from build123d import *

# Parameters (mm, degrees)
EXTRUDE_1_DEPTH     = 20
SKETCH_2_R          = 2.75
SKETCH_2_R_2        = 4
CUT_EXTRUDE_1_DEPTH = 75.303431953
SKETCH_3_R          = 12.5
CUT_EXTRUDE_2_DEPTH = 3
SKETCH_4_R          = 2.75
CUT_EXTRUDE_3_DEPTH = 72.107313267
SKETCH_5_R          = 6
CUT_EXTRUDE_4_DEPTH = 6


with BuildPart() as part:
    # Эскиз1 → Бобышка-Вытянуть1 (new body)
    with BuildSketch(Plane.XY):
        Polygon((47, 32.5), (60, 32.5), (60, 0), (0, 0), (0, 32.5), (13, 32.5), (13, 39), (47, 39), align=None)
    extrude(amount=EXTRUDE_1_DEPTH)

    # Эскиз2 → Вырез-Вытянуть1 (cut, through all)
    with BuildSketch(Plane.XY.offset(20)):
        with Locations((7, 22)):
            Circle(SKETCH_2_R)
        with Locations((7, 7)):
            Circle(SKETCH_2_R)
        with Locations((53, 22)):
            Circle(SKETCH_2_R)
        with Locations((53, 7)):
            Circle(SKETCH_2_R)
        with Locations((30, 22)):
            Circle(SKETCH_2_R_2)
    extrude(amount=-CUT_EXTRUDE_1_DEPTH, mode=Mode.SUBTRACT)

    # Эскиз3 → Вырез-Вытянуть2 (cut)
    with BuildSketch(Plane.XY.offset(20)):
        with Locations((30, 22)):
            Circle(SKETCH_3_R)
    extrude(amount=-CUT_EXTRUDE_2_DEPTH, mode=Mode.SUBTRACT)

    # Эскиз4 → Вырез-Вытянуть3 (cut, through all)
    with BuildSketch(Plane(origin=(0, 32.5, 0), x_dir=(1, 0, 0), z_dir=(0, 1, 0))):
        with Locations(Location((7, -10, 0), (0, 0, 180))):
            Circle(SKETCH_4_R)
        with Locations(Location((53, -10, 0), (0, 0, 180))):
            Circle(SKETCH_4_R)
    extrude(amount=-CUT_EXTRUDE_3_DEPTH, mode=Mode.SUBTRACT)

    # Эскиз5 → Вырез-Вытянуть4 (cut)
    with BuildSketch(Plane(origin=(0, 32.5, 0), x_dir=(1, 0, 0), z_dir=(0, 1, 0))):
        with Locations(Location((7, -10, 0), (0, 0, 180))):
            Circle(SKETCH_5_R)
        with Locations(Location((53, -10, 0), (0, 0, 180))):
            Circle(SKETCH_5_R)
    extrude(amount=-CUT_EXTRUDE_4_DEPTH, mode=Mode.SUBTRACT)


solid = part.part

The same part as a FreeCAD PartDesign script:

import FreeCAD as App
import Part
import Sketcher

V = App.Vector

doc = App.newDocument("Part")
body = doc.addObject("PartDesign::Body", "Body")

sketch1 = body.newObject("Sketcher::SketchObject", "Sketch")
sketch1.AttachmentSupport = (doc.getObject("XY_Plane"), [""])
sketch1.MapMode = "FlatFace"
sketch1.addGeometry(Part.LineSegment(V(60, 32, 0), V(47, 32, 0)), False)
sketch1.addGeometry(Part.LineSegment(V(47, 32, 0), V(47, 39, 0)), False)
sketch1.addGeometry(Part.LineSegment(V(47, 39, 0), V(13, 39, 0)), False)
sketch1.addGeometry(Part.LineSegment(V(13, 39, 0), V(13, 32, 0)), False)
sketch1.addGeometry(Part.LineSegment(V(13, 32, 0), V(0, 32, 0)), False)
sketch1.addGeometry(Part.LineSegment(V(0, 32, 0), V(0, 0, 0)), False)
sketch1.addGeometry(Part.LineSegment(V(0, 0, 0), V(60, 0, 0)), False)
sketch1.addGeometry(Part.LineSegment(V(60, 0, 0), V(60, 32, 0)), False)
sketch1.addConstraint(Sketcher.Constraint("Coincident", 0, 2, 1, 1))
sketch1.addConstraint(Sketcher.Constraint("Coincident", 1, 2, 2, 1))
sketch1.addConstraint(Sketcher.Constraint("Coincident", 2, 2, 3, 1))
sketch1.addConstraint(Sketcher.Constraint("Coincident", 3, 2, 4, 1))
sketch1.addConstraint(Sketcher.Constraint("Coincident", 4, 2, 5, 1))
sketch1.addConstraint(Sketcher.Constraint("Coincident", 5, 2, 6, 1))
sketch1.addConstraint(Sketcher.Constraint("Coincident", 6, 2, 7, 1))
sketch1.addConstraint(Sketcher.Constraint("Coincident", 7, 2, 0, 1))
sketch1.addConstraint(Sketcher.Constraint("Horizontal", 0))
sketch1.addConstraint(Sketcher.Constraint("Vertical", 1))
sketch1.addConstraint(Sketcher.Constraint("Horizontal", 2))
sketch1.addConstraint(Sketcher.Constraint("Vertical", 3))
sketch1.addConstraint(Sketcher.Constraint("Horizontal", 4))
sketch1.addConstraint(Sketcher.Constraint("Vertical", 5))
sketch1.addConstraint(Sketcher.Constraint("Horizontal", 6))
sketch1.addConstraint(Sketcher.Constraint("Vertical", 7))
sketch1.addConstraint(Sketcher.Constraint("Coincident", 5, 2, -1, 1))
sketch1.addConstraint(Sketcher.Constraint("Horizontal", 0, 2, 3, 2))
sketch1.addConstraint(Sketcher.Constraint("Equal", 0, 4))
sketch1.addConstraint(Sketcher.Constraint("DistanceX", 0, 2, 0, 1, 13.0))
sketch1.addConstraint(Sketcher.Constraint("DistanceX", 2, 2, 2, 1, 34.0))
sketch1.addConstraint(Sketcher.Constraint("DistanceY", 1, 1, 1, 2, 6.5))
sketch1.addConstraint(Sketcher.Constraint("DistanceY", 5, 2, 5, 1, 32.5))
pad1 = body.newObject("PartDesign::Pad", "Pad")
pad1.Profile = sketch1
pad1.Length = 20

sketch2 = body.newObject("Sketcher::SketchObject", "Sketch001")
sketch2.AttachmentSupport = (doc.getObject("XY_Plane"), [""])
sketch2.MapMode = "FlatFace"
sketch2.AttachmentOffset = App.Placement(V(0, 0, 20), App.Rotation())
sketch2.addGeometry(Part.Circle(V(7, 22, 0), V(0, 0, 1), 2.8), False)
sketch2.addGeometry(Part.Circle(V(7, 7, 0), V(0, 0, 1), 2.8), False)
sketch2.addGeometry(Part.Circle(V(53, 22, 0), V(0, 0, 1), 2.8), False)
sketch2.addGeometry(Part.Circle(V(53, 7, 0), V(0, 0, 1), 2.8), False)
sketch2.addGeometry(Part.Circle(V(30, 22, 0), V(0, 0, 1), 4), False)
sketch2.addConstraint(Sketcher.Constraint("Equal", 0, 1))
sketch2.addConstraint(Sketcher.Constraint("Equal", 1, 2))
sketch2.addConstraint(Sketcher.Constraint("Equal", 2, 3))
sketch2.addConstraint(Sketcher.Constraint("Horizontal", 0, 3, 2, 3))
sketch2.addConstraint(Sketcher.Constraint("Horizontal", 1, 3, 3, 3))
sketch2.addConstraint(Sketcher.Constraint("Horizontal", 2, 3, 4, 3))
sketch2.addConstraint(Sketcher.Constraint("Vertical", 0, 3, 1, 3))
sketch2.addConstraint(Sketcher.Constraint("Vertical", 2, 3, 3, 3))
sketch2.addConstraint(Sketcher.Constraint("Diameter", 4, 8.0))
sketch2.addConstraint(Sketcher.Constraint("Diameter", 0, 5.5))
sketch2.addConstraint(Sketcher.Constraint("DistanceX", -1, 1, 0, 3, 7.0))
sketch2.addConstraint(Sketcher.Constraint("DistanceY", -1, 1, 0, 3, 22.0))
sketch2.addConstraint(Sketcher.Constraint("DistanceY", -1, 1, 1, 3, 7.0))
sketch2.addConstraint(Sketcher.Constraint("DistanceX", -1, 1, 2, 3, 53.0))
sketch2.addConstraint(Sketcher.Constraint("DistanceX", -1, 1, 4, 3, 30.0))
pocket1 = body.newObject("PartDesign::Pocket", "Pocket")
pocket1.Profile = sketch2
pocket1.Type = "ThroughAll"

sketch3 = body.newObject("Sketcher::SketchObject", "Sketch002")
sketch3.AttachmentSupport = (doc.getObject("XY_Plane"), [""])
sketch3.MapMode = "FlatFace"
sketch3.AttachmentOffset = App.Placement(V(0, 0, 20), App.Rotation())
sketch3.addGeometry(Part.Circle(V(30, 22, 0), V(0, 0, 1), 12), False)
sketch3.addConstraint(Sketcher.Constraint("Diameter", 0, 25.0))
sketch3.addConstraint(Sketcher.Constraint("DistanceX", -1, 1, 0, 3, 30.0))
sketch3.addConstraint(Sketcher.Constraint("DistanceY", -1, 1, 0, 3, 22.0))
pocket2 = body.newObject("PartDesign::Pocket", "Pocket001")
pocket2.Profile = sketch3
pocket2.Length = 3

sketch4 = body.newObject("Sketcher::SketchObject", "Sketch003")
sketch4.AttachmentSupport = (doc.getObject("XZ_Plane"), [""])
sketch4.MapMode = "FlatFace"
sketch4.AttachmentOffset = App.Placement(V(0, 0, -32.5), App.Rotation())
sketch4.addGeometry(Part.Circle(V(7, 10, 0), V(0, 0, 1), 2.8), False)
sketch4.addGeometry(Part.Circle(V(53, 10, 0), V(0, 0, 1), 2.8), False)
sketch4.addConstraint(Sketcher.Constraint("Equal", 0, 1))
sketch4.addConstraint(Sketcher.Constraint("Horizontal", 0, 3, 1, 3))
sketch4.addConstraint(Sketcher.Constraint("Diameter", 0, 5.5))
sketch4.addConstraint(Sketcher.Constraint("DistanceX", -1, 1, 0, 3, 7.0))
sketch4.addConstraint(Sketcher.Constraint("DistanceY", -1, 1, 0, 3, 10.0))
sketch4.addConstraint(Sketcher.Constraint("DistanceX", -1, 1, 1, 3, 53.0))
pocket3 = body.newObject("PartDesign::Pocket", "Pocket002")
pocket3.Profile = sketch4
pocket3.Type = "ThroughAll"
pocket3.Reversed = True

sketch5 = body.newObject("Sketcher::SketchObject", "Sketch004")
sketch5.AttachmentSupport = (doc.getObject("XZ_Plane"), [""])
sketch5.MapMode = "FlatFace"
sketch5.AttachmentOffset = App.Placement(V(0, 0, -32.5), App.Rotation())
sketch5.addGeometry(Part.Circle(V(7, 10, 0), V(0, 0, 1), 6), False)
sketch5.addGeometry(Part.Circle(V(53, 10, 0), V(0, 0, 1), 6), False)
sketch5.addConstraint(Sketcher.Constraint("Equal", 0, 1))
sketch5.addConstraint(Sketcher.Constraint("Horizontal", 0, 3, 1, 3))
sketch5.addConstraint(Sketcher.Constraint("Diameter", 0, 12.0))
sketch5.addConstraint(Sketcher.Constraint("DistanceX", -1, 1, 0, 3, 7.0))
sketch5.addConstraint(Sketcher.Constraint("DistanceY", -1, 1, 0, 3, 10.0))
sketch5.addConstraint(Sketcher.Constraint("DistanceX", -1, 1, 1, 3, 53.0))
pocket4 = body.newObject("PartDesign::Pocket", "Pocket003")
pocket4.Profile = sketch5
pocket4.Length = 6
pocket4.Reversed = True

doc.recompute()
